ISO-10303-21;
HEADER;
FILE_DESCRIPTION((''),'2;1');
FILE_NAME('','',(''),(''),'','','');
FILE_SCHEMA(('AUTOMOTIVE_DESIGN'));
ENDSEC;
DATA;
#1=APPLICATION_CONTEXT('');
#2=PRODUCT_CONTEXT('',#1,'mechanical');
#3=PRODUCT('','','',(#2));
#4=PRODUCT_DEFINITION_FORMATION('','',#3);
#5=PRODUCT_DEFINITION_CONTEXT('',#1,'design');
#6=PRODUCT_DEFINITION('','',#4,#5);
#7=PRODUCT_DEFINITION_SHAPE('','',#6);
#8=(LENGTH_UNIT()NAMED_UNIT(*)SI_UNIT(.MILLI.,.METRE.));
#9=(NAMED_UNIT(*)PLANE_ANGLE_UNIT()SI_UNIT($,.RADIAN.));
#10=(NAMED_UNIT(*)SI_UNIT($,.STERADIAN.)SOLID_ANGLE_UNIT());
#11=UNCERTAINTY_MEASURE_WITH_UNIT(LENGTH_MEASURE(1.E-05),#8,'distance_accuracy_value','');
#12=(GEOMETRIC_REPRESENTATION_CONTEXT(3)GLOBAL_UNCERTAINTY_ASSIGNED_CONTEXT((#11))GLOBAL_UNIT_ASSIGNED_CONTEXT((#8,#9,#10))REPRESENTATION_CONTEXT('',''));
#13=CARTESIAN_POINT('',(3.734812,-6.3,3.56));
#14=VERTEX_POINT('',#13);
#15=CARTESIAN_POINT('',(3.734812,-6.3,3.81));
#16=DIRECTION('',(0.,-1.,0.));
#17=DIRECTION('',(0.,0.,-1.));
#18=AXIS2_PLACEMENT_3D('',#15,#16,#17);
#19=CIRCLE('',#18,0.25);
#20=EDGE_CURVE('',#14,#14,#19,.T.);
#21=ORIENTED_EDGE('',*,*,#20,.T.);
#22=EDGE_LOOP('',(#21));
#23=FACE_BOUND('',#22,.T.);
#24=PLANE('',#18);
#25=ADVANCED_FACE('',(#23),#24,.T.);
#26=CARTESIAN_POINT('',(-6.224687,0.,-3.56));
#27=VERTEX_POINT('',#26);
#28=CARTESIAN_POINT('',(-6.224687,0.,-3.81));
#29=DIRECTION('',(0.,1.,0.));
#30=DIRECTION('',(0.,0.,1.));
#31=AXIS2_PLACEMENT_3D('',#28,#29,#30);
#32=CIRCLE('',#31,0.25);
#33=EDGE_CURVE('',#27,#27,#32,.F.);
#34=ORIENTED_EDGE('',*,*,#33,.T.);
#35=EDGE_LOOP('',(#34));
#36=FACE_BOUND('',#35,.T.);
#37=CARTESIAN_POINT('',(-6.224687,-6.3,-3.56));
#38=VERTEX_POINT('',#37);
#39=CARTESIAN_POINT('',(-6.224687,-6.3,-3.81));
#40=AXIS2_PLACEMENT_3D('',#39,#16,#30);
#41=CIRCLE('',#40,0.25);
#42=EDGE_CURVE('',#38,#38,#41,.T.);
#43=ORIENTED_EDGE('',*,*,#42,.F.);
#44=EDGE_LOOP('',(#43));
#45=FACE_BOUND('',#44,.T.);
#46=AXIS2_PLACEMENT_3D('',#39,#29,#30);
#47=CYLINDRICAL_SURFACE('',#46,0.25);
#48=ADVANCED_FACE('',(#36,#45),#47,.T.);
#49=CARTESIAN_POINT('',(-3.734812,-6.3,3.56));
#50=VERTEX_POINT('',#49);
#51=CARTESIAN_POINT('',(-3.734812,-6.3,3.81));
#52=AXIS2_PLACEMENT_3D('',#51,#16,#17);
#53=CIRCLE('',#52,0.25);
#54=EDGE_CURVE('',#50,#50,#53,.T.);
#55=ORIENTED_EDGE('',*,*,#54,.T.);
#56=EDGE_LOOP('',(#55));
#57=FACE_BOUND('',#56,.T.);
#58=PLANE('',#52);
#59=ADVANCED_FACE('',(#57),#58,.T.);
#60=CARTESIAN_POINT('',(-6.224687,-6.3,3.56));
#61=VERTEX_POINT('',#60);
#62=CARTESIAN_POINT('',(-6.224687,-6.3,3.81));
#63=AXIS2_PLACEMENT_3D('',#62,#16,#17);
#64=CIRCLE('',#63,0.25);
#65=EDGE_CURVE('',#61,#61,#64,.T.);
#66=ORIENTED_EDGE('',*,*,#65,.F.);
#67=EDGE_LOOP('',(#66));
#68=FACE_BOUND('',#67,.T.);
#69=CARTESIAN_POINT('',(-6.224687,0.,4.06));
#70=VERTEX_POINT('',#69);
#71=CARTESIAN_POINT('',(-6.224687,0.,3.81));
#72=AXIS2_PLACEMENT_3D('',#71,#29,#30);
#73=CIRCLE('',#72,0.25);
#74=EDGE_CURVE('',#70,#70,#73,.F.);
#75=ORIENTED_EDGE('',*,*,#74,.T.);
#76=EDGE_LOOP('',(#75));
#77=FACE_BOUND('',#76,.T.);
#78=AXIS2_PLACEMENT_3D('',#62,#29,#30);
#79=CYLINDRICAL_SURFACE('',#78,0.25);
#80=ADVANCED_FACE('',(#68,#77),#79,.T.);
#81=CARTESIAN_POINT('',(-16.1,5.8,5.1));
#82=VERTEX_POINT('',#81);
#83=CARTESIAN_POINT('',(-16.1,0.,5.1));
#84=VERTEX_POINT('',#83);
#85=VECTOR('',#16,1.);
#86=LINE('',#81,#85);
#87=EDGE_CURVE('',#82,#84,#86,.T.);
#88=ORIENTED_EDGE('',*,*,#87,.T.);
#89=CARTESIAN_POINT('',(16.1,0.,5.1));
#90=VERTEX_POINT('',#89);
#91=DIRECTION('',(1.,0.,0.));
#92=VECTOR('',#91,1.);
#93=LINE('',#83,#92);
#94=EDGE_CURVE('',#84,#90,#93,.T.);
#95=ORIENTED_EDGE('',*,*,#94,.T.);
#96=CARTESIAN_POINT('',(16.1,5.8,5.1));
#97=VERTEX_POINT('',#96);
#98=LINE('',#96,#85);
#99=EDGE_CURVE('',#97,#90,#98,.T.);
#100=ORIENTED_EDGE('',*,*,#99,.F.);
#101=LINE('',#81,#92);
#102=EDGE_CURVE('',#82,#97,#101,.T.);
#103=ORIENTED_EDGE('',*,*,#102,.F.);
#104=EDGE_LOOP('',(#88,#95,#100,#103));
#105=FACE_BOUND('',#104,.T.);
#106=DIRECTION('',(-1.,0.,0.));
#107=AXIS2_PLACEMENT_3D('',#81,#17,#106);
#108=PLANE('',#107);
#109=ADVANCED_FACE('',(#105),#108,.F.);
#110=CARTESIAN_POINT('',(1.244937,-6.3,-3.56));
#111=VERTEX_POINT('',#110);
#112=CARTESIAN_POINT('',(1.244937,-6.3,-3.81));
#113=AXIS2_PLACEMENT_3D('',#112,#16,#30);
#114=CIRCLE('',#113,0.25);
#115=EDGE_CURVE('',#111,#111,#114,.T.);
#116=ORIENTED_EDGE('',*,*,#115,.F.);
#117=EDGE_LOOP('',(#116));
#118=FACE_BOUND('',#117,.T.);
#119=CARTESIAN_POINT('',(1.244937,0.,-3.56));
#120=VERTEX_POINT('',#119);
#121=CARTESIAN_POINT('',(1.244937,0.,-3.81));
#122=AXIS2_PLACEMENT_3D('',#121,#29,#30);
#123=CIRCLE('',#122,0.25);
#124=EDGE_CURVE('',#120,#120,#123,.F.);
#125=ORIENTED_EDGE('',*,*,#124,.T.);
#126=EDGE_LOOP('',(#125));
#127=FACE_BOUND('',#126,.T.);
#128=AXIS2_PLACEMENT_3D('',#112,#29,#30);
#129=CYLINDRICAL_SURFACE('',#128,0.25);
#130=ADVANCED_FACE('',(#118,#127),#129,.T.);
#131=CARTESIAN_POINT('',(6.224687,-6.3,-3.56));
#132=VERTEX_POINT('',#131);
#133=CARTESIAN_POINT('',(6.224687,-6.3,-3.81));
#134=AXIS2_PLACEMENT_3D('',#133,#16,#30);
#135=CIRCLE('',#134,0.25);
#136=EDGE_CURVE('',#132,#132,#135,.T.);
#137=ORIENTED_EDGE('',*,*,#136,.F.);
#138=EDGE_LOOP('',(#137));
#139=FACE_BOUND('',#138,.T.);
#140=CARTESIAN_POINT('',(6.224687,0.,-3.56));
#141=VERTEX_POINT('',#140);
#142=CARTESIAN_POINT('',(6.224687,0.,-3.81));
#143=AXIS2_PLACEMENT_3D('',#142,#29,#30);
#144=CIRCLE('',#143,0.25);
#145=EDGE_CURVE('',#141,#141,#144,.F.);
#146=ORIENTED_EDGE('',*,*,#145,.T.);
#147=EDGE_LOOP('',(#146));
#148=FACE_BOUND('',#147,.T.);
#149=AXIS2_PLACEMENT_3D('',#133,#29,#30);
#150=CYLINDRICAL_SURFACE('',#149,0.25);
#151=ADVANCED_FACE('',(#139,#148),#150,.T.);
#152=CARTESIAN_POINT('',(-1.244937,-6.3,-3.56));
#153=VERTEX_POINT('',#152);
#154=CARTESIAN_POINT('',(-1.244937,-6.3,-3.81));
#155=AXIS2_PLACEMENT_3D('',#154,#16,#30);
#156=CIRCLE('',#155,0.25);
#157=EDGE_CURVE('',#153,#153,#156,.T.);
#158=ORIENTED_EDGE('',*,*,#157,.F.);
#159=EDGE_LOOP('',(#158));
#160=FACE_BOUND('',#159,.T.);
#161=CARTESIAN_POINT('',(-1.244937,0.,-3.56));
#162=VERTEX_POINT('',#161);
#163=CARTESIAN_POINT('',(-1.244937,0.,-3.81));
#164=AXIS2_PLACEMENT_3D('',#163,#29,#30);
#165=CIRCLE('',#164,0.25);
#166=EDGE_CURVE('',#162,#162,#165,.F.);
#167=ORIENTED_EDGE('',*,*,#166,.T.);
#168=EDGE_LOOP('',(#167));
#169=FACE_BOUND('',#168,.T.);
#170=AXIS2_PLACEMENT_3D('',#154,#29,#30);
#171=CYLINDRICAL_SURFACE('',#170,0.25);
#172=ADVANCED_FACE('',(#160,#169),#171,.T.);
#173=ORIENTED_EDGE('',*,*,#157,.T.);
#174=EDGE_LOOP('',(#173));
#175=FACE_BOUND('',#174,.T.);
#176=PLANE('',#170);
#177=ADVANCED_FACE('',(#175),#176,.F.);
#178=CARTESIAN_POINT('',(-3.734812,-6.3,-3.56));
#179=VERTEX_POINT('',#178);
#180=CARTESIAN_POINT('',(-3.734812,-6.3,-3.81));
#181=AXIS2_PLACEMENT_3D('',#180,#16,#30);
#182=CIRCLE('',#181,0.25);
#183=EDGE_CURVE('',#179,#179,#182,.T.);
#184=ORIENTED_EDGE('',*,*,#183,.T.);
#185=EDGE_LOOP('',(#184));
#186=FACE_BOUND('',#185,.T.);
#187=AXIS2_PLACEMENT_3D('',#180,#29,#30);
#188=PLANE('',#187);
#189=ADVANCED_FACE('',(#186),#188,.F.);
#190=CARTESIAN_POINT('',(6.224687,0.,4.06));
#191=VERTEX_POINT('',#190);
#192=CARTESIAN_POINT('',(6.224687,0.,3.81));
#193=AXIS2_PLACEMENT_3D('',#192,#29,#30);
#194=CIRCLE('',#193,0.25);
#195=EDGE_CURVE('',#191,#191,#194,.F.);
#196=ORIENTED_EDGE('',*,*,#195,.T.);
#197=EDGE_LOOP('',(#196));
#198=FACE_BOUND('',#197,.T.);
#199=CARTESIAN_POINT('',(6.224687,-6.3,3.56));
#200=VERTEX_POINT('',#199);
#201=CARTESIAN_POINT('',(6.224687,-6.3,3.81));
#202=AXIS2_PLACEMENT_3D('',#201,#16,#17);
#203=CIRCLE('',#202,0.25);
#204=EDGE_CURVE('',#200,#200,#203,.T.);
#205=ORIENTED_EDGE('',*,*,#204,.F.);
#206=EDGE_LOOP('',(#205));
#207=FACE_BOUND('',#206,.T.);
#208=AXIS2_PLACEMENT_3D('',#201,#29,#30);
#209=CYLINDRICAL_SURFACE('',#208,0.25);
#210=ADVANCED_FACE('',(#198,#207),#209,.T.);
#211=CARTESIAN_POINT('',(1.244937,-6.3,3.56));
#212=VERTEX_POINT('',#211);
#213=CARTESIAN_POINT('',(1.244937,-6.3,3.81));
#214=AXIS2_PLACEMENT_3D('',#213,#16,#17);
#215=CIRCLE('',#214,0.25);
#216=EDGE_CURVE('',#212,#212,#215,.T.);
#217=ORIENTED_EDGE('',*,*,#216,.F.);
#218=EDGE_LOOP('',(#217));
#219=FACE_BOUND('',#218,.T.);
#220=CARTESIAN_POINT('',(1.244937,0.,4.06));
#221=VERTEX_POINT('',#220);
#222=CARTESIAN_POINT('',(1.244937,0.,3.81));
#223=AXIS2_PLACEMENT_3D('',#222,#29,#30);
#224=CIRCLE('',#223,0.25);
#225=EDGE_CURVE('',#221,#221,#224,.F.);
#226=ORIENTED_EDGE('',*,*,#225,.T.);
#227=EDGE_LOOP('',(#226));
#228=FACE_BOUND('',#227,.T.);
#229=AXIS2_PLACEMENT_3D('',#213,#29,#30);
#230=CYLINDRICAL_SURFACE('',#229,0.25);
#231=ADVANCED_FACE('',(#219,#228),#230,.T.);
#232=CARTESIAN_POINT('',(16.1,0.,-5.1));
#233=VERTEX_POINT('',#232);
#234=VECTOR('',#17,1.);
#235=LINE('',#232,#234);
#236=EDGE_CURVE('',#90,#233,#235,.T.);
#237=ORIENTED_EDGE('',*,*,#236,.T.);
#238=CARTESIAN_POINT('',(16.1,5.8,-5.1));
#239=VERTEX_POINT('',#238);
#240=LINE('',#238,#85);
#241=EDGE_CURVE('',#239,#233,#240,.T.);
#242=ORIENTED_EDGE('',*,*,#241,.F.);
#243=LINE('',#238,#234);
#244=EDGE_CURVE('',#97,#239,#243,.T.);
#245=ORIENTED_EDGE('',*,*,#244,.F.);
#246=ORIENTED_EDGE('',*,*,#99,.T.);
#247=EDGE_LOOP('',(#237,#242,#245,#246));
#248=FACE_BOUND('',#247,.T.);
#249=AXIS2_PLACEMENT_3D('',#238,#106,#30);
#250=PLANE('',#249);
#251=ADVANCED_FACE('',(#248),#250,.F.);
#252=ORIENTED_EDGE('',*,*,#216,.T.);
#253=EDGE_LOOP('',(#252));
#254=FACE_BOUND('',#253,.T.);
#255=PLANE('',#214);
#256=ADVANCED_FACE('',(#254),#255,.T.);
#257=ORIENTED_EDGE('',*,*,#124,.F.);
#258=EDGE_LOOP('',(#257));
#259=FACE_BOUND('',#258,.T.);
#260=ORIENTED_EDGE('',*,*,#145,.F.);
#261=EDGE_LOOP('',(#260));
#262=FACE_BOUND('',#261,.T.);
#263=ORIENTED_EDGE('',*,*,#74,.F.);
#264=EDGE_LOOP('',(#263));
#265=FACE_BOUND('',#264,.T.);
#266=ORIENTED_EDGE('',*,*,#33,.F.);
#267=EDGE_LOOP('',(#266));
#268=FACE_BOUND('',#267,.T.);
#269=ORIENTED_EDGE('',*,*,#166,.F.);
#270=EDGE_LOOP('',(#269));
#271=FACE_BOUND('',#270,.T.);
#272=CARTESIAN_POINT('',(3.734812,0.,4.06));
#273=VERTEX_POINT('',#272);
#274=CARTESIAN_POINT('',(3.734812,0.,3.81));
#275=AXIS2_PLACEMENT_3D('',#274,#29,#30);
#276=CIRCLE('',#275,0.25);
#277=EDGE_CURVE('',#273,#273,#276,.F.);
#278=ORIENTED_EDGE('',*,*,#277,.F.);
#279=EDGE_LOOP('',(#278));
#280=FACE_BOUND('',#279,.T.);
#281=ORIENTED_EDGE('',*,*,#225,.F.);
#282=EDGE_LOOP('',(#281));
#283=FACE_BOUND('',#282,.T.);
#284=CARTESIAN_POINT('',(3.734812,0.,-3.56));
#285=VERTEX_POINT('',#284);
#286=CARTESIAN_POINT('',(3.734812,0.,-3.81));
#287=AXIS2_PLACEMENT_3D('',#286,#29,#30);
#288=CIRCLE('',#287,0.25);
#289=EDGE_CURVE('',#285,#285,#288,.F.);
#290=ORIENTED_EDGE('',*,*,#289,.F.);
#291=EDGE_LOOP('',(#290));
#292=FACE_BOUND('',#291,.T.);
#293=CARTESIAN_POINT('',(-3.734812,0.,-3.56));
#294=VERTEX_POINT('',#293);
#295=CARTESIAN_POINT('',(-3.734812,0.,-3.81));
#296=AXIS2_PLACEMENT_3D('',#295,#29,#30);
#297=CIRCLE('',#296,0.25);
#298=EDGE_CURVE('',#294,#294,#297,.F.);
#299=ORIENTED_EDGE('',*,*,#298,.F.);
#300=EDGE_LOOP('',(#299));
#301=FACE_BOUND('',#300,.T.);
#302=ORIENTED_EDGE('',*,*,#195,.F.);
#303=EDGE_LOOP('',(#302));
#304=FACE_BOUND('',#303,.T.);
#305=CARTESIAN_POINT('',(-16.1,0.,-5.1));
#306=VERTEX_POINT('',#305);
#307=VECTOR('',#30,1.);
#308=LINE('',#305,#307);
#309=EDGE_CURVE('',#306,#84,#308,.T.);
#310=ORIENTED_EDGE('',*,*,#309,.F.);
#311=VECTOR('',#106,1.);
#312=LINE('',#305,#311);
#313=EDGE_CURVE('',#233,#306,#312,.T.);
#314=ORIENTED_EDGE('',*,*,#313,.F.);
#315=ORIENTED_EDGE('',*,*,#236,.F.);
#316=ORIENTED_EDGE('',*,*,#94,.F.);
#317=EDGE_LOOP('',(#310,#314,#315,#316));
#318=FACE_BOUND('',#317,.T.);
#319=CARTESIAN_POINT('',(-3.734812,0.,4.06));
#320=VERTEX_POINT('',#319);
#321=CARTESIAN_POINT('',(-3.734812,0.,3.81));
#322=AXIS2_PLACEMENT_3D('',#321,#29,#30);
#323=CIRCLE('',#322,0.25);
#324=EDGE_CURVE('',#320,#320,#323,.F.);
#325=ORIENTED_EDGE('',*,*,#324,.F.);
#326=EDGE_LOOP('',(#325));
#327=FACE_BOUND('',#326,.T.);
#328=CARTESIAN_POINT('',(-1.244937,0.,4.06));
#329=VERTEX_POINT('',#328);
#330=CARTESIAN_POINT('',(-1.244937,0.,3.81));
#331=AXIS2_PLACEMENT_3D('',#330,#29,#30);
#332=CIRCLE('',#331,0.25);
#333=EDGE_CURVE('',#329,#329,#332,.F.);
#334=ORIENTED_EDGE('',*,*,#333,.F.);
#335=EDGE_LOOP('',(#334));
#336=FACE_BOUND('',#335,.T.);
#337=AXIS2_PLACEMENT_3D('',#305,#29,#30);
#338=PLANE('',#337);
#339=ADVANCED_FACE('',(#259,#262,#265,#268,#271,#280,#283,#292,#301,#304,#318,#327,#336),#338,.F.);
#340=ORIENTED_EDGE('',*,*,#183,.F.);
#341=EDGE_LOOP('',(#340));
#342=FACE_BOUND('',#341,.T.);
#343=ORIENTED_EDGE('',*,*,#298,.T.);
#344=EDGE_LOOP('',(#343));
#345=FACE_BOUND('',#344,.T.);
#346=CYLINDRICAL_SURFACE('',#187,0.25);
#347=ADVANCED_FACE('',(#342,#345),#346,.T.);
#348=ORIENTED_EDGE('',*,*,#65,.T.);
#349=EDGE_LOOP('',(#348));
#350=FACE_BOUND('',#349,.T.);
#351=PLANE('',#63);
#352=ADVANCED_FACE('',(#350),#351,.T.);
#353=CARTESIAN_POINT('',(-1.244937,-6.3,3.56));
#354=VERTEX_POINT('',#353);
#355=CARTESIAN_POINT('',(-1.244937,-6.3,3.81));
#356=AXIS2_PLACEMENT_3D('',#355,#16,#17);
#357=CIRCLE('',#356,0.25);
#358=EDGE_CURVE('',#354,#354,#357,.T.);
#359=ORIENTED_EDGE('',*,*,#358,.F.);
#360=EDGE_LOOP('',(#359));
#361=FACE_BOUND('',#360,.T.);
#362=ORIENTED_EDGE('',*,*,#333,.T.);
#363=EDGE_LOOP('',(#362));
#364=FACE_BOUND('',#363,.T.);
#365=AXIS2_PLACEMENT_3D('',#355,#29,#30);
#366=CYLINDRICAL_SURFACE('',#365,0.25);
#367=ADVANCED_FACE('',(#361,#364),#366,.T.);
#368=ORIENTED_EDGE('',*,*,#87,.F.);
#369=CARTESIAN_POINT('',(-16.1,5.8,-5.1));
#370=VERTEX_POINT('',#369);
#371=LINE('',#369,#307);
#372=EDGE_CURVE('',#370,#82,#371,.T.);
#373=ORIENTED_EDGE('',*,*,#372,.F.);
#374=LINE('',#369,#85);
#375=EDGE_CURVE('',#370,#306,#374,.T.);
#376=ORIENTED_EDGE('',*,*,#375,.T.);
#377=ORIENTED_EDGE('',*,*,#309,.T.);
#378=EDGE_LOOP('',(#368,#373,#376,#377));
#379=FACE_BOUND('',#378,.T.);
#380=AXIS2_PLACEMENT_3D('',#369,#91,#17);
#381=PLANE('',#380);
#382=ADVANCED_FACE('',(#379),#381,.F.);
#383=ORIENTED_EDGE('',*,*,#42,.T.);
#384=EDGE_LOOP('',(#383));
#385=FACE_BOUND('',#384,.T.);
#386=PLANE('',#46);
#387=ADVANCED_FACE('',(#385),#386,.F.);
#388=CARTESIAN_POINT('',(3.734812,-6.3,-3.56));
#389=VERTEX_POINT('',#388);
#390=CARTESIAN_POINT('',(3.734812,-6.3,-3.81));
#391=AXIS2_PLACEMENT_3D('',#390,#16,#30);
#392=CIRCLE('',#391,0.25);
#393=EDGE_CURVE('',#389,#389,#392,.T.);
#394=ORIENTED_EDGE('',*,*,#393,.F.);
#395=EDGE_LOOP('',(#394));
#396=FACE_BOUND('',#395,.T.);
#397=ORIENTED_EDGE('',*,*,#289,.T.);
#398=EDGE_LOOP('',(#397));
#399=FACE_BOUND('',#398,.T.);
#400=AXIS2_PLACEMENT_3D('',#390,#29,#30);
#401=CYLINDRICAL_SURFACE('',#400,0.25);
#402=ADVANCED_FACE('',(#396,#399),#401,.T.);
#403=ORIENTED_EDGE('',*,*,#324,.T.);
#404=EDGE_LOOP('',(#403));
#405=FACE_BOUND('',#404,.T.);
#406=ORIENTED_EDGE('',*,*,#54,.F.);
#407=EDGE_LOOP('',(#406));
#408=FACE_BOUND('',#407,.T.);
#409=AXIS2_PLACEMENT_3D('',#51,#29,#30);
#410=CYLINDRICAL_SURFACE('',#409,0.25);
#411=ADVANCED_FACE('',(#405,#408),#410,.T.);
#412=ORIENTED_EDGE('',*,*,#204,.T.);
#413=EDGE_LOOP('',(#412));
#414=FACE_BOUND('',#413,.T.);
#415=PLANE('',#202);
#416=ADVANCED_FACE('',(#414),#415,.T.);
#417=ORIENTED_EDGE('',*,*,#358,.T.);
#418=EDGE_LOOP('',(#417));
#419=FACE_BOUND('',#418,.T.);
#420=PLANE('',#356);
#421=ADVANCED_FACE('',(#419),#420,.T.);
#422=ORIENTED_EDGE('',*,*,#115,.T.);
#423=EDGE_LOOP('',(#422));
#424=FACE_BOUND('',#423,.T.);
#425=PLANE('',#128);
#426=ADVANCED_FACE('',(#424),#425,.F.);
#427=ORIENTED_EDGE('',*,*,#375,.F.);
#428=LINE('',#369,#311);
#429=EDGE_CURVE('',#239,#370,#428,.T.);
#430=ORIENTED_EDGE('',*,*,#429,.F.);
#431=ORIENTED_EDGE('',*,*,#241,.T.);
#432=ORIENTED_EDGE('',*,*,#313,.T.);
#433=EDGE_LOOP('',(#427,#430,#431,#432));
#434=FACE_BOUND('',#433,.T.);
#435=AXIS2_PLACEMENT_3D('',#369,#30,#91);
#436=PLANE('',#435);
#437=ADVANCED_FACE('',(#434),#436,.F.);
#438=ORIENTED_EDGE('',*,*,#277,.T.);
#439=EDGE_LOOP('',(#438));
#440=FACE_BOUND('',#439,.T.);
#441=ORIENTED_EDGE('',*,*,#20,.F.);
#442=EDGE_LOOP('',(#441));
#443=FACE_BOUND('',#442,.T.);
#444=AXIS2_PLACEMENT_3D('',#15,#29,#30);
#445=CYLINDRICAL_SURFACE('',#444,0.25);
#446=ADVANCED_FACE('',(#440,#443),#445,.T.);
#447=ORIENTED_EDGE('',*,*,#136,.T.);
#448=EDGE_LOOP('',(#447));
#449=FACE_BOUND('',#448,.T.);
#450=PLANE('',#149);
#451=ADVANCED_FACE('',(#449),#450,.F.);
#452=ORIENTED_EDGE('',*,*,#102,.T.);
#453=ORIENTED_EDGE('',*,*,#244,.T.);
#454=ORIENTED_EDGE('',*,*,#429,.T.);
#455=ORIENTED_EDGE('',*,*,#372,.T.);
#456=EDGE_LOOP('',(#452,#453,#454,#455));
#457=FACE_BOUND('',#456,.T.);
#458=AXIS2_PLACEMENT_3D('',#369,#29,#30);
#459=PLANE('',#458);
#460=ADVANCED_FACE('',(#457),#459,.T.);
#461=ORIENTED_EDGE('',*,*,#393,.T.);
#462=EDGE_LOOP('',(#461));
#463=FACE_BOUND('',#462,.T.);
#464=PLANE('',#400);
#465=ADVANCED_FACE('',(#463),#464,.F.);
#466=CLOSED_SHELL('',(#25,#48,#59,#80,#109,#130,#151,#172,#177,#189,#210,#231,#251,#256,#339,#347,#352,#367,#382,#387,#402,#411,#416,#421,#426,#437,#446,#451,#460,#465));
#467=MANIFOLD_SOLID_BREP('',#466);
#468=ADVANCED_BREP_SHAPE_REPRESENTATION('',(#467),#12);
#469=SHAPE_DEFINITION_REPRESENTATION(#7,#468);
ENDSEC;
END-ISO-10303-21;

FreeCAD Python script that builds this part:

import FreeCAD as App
import Part
import Sketcher
from FreeCAD import Vector
Q = App.Units.Quantity

doc = App.newDocument("Part")
body = doc.addObject("PartDesign::Body", "Body")

sketch1 = doc.addObject("Sketcher::SketchObject", "Sketch")
body.addObject(sketch1)
sketch1.AttachmentSupport = (doc.XZ_Plane, [""])
sketch1.MapMode = "FlatFace"
sketch1.addGeometry(Part.LineSegment(Vector(-16, -5, 0), Vector(-16, 5, 0)), False)
sketch1.addGeometry(Part.LineSegment(Vector(-16, 5, 0), Vector(16, 5, 0)), False)
sketch1.addGeometry(Part.LineSegment(Vector(16, 5, 0), Vector(16, -5, 0)), False)
sketch1.addGeometry(Part.LineSegment(Vector(16, -5, 0), Vector(-16, -5, 0)), False)
sketch1.addConstraint(Sketcher.Constraint("Coincident", 0, 2, 1, 1))
sketch1.addConstraint(Sketcher.Constraint("Coincident", 1, 2, 2, 1))
sketch1.addConstraint(Sketcher.Constraint("Coincident", 2, 2, 3, 1))
sketch1.addConstraint(Sketcher.Constraint("Coincident", 3, 2, 0, 1))
sketch1.addConstraint(Sketcher.Constraint("Vertical", 0))
sketch1.addConstraint(Sketcher.Constraint("Horizontal", 1))
sketch1.addConstraint(Sketcher.Constraint("Vertical", 2))
sketch1.addConstraint(Sketcher.Constraint("Horizontal", 3))
sketch1.addConstraint(Sketcher.Constraint("Symmetric", 0, 2, 2, 2, -1, 1))
sketch1.addConstraint(Sketcher.Constraint("DistanceX", 1, 1, 1, 2, Q("32.2 mm")))
sketch1.addConstraint(Sketcher.Constraint("DistanceY", 0, 1, 0, 2, Q("10.2 mm")))
pad1 = doc.addObject("PartDesign::Pad", "Pad")
body.addObject(pad1)
pad1.Profile = sketch1
pad1.Length = 5.8
pad1.Reversed = True

sketch2 = doc.addObject("Sketcher::SketchObject", "Sketch001")
body.addObject(sketch2)
sketch2.AttachmentSupport = (doc.XZ_Plane, [""])
sketch2.MapMode = "FlatFace"
sketch2.addGeometry(Part.Circle(Vector(6.22, 3.81, 0), Vector(0, 0, 1), 0.25), False)
sketch2.addGeometry(Part.Circle(Vector(3.73, 3.81, 0), Vector(0, 0, 1), 0.25), False)
sketch2.addGeometry(Part.Circle(Vector(1.24, 3.81, 0), Vector(0, 0, 1), 0.25), False)
sketch2.addGeometry(Part.Circle(Vector(-1.24, 3.81, 0), Vector(0, 0, 1), 0.25), False)
sketch2.addGeometry(Part.Circle(Vector(-3.73, 3.81, 0), Vector(0, 0, 1), 0.25), False)
sketch2.addGeometry(Part.Circle(Vector(-6.22, 3.81, 0), Vector(0, 0, 1), 0.25), False)
sketch2.addGeometry(Part.Circle(Vector(-6.22, -3.81, 0), Vector(0, 0, 1), 0.25), False)
sketch2.addGeometry(Part.Circle(Vector(-3.73, -3.81, 0), Vector(0, 0, 1), 0.25), False)
sketch2.addGeometry(Part.Circle(Vector(-1.24, -3.81, 0), Vector(0, 0, 1), 0.25), False)
sketch2.addGeometry(Part.Circle(Vector(1.24, -3.81, 0), Vector(0, 0, 1), 0.25), False)
sketch2.addGeometry(Part.Circle(Vector(3.73, -3.81, 0), Vector(0, 0, 1), 0.25), False)
sketch2.addGeometry(Part.Circle(Vector(6.22, -3.81, 0), Vector(0, 0, 1), 0.25), False)
sketch2.addConstraint(Sketcher.Constraint("Equal", 0, 1))
sketch2.addConstraint(Sketcher.Constraint("Equal", 1, 2))
sketch2.addConstraint(Sketcher.Constraint("Equal", 2, 3))
sketch2.addConstraint(Sketcher.Constraint("Equal", 3, 4))
sketch2.addConstraint(Sketcher.Constraint("Equal", 4, 5))
sketch2.addConstraint(Sketcher.Constraint("Equal", 5, 6))
sketch2.addConstraint(Sketcher.Constraint("Equal", 6, 7))
sketch2.addConstraint(Sketcher.Constraint("Equal", 7, 8))
sketch2.addConstraint(Sketcher.Constraint("Equal", 8, 9))
sketch2.addConstraint(Sketcher.Constraint("Equal", 9, 10))
sketch2.addConstraint(Sketcher.Constraint("Equal", 10, 11))
sketch2.addConstraint(Sketcher.Constraint("Symmetric", 0, 3, 6, 3, -1, 1))
sketch2.addConstraint(Sketcher.Constraint("Symmetric", 1, 3, 7, 3, -1, 1))
sketch2.addConstraint(Sketcher.Constraint("Symmetric", 2, 3, 8, 3, -1, 1))
sketch2.addConstraint(Sketcher.Constraint("Symmetric", 3, 3, 9, 3, -1, 1))
sketch2.addConstraint(Sketcher.Constraint("Symmetric", 4, 3, 10, 3, -1, 1))
sketch2.addConstraint(Sketcher.Constraint("Symmetric", 5, 3, 11, 3, -1, 1))
sketch2.addConstraint(Sketcher.Constraint("Symmetric", 2, 3, 3, 3, -2))
sketch2.addConstraint(Sketcher.Constraint("Symmetric", 1, 3, 4, 3, -2))
sketch2.addConstraint(Sketcher.Constraint("Symmetric", 0, 3, 5, 3, -2))
sketch2.addConstraint(Sketcher.Constraint("Horizontal", 0, 3, 1, 3))
sketch2.addConstraint(Sketcher.Constraint("Horizontal", 1, 3, 2, 3))
sketch2.addConstraint(Sketcher.Constraint("Diameter", 0, Q("0.5 mm")))
sketch2.addConstraint(Sketcher.Constraint("DistanceY", -1, 1, 0, 3, Q("3.81 mm")))
sketch2.addConstraint(Sketcher.Constraint("DistanceX", 4, 3, 0, 3, Q("9.959499 mm")))
sketch2.addConstraint(Sketcher.Constraint("DistanceX", -1, 1, 1, 3, Q("3.734812 mm")))
sketch2.addConstraint(Sketcher.Constraint("DistanceX", 2, 3, 0, 3, Q("4.979749 mm")))
pad2 = doc.addObject("PartDesign::Pad", "Pad001")
body.addObject(pad2)
pad2.Profile = sketch2
pad2.Length = 6.3

doc.recompute()
